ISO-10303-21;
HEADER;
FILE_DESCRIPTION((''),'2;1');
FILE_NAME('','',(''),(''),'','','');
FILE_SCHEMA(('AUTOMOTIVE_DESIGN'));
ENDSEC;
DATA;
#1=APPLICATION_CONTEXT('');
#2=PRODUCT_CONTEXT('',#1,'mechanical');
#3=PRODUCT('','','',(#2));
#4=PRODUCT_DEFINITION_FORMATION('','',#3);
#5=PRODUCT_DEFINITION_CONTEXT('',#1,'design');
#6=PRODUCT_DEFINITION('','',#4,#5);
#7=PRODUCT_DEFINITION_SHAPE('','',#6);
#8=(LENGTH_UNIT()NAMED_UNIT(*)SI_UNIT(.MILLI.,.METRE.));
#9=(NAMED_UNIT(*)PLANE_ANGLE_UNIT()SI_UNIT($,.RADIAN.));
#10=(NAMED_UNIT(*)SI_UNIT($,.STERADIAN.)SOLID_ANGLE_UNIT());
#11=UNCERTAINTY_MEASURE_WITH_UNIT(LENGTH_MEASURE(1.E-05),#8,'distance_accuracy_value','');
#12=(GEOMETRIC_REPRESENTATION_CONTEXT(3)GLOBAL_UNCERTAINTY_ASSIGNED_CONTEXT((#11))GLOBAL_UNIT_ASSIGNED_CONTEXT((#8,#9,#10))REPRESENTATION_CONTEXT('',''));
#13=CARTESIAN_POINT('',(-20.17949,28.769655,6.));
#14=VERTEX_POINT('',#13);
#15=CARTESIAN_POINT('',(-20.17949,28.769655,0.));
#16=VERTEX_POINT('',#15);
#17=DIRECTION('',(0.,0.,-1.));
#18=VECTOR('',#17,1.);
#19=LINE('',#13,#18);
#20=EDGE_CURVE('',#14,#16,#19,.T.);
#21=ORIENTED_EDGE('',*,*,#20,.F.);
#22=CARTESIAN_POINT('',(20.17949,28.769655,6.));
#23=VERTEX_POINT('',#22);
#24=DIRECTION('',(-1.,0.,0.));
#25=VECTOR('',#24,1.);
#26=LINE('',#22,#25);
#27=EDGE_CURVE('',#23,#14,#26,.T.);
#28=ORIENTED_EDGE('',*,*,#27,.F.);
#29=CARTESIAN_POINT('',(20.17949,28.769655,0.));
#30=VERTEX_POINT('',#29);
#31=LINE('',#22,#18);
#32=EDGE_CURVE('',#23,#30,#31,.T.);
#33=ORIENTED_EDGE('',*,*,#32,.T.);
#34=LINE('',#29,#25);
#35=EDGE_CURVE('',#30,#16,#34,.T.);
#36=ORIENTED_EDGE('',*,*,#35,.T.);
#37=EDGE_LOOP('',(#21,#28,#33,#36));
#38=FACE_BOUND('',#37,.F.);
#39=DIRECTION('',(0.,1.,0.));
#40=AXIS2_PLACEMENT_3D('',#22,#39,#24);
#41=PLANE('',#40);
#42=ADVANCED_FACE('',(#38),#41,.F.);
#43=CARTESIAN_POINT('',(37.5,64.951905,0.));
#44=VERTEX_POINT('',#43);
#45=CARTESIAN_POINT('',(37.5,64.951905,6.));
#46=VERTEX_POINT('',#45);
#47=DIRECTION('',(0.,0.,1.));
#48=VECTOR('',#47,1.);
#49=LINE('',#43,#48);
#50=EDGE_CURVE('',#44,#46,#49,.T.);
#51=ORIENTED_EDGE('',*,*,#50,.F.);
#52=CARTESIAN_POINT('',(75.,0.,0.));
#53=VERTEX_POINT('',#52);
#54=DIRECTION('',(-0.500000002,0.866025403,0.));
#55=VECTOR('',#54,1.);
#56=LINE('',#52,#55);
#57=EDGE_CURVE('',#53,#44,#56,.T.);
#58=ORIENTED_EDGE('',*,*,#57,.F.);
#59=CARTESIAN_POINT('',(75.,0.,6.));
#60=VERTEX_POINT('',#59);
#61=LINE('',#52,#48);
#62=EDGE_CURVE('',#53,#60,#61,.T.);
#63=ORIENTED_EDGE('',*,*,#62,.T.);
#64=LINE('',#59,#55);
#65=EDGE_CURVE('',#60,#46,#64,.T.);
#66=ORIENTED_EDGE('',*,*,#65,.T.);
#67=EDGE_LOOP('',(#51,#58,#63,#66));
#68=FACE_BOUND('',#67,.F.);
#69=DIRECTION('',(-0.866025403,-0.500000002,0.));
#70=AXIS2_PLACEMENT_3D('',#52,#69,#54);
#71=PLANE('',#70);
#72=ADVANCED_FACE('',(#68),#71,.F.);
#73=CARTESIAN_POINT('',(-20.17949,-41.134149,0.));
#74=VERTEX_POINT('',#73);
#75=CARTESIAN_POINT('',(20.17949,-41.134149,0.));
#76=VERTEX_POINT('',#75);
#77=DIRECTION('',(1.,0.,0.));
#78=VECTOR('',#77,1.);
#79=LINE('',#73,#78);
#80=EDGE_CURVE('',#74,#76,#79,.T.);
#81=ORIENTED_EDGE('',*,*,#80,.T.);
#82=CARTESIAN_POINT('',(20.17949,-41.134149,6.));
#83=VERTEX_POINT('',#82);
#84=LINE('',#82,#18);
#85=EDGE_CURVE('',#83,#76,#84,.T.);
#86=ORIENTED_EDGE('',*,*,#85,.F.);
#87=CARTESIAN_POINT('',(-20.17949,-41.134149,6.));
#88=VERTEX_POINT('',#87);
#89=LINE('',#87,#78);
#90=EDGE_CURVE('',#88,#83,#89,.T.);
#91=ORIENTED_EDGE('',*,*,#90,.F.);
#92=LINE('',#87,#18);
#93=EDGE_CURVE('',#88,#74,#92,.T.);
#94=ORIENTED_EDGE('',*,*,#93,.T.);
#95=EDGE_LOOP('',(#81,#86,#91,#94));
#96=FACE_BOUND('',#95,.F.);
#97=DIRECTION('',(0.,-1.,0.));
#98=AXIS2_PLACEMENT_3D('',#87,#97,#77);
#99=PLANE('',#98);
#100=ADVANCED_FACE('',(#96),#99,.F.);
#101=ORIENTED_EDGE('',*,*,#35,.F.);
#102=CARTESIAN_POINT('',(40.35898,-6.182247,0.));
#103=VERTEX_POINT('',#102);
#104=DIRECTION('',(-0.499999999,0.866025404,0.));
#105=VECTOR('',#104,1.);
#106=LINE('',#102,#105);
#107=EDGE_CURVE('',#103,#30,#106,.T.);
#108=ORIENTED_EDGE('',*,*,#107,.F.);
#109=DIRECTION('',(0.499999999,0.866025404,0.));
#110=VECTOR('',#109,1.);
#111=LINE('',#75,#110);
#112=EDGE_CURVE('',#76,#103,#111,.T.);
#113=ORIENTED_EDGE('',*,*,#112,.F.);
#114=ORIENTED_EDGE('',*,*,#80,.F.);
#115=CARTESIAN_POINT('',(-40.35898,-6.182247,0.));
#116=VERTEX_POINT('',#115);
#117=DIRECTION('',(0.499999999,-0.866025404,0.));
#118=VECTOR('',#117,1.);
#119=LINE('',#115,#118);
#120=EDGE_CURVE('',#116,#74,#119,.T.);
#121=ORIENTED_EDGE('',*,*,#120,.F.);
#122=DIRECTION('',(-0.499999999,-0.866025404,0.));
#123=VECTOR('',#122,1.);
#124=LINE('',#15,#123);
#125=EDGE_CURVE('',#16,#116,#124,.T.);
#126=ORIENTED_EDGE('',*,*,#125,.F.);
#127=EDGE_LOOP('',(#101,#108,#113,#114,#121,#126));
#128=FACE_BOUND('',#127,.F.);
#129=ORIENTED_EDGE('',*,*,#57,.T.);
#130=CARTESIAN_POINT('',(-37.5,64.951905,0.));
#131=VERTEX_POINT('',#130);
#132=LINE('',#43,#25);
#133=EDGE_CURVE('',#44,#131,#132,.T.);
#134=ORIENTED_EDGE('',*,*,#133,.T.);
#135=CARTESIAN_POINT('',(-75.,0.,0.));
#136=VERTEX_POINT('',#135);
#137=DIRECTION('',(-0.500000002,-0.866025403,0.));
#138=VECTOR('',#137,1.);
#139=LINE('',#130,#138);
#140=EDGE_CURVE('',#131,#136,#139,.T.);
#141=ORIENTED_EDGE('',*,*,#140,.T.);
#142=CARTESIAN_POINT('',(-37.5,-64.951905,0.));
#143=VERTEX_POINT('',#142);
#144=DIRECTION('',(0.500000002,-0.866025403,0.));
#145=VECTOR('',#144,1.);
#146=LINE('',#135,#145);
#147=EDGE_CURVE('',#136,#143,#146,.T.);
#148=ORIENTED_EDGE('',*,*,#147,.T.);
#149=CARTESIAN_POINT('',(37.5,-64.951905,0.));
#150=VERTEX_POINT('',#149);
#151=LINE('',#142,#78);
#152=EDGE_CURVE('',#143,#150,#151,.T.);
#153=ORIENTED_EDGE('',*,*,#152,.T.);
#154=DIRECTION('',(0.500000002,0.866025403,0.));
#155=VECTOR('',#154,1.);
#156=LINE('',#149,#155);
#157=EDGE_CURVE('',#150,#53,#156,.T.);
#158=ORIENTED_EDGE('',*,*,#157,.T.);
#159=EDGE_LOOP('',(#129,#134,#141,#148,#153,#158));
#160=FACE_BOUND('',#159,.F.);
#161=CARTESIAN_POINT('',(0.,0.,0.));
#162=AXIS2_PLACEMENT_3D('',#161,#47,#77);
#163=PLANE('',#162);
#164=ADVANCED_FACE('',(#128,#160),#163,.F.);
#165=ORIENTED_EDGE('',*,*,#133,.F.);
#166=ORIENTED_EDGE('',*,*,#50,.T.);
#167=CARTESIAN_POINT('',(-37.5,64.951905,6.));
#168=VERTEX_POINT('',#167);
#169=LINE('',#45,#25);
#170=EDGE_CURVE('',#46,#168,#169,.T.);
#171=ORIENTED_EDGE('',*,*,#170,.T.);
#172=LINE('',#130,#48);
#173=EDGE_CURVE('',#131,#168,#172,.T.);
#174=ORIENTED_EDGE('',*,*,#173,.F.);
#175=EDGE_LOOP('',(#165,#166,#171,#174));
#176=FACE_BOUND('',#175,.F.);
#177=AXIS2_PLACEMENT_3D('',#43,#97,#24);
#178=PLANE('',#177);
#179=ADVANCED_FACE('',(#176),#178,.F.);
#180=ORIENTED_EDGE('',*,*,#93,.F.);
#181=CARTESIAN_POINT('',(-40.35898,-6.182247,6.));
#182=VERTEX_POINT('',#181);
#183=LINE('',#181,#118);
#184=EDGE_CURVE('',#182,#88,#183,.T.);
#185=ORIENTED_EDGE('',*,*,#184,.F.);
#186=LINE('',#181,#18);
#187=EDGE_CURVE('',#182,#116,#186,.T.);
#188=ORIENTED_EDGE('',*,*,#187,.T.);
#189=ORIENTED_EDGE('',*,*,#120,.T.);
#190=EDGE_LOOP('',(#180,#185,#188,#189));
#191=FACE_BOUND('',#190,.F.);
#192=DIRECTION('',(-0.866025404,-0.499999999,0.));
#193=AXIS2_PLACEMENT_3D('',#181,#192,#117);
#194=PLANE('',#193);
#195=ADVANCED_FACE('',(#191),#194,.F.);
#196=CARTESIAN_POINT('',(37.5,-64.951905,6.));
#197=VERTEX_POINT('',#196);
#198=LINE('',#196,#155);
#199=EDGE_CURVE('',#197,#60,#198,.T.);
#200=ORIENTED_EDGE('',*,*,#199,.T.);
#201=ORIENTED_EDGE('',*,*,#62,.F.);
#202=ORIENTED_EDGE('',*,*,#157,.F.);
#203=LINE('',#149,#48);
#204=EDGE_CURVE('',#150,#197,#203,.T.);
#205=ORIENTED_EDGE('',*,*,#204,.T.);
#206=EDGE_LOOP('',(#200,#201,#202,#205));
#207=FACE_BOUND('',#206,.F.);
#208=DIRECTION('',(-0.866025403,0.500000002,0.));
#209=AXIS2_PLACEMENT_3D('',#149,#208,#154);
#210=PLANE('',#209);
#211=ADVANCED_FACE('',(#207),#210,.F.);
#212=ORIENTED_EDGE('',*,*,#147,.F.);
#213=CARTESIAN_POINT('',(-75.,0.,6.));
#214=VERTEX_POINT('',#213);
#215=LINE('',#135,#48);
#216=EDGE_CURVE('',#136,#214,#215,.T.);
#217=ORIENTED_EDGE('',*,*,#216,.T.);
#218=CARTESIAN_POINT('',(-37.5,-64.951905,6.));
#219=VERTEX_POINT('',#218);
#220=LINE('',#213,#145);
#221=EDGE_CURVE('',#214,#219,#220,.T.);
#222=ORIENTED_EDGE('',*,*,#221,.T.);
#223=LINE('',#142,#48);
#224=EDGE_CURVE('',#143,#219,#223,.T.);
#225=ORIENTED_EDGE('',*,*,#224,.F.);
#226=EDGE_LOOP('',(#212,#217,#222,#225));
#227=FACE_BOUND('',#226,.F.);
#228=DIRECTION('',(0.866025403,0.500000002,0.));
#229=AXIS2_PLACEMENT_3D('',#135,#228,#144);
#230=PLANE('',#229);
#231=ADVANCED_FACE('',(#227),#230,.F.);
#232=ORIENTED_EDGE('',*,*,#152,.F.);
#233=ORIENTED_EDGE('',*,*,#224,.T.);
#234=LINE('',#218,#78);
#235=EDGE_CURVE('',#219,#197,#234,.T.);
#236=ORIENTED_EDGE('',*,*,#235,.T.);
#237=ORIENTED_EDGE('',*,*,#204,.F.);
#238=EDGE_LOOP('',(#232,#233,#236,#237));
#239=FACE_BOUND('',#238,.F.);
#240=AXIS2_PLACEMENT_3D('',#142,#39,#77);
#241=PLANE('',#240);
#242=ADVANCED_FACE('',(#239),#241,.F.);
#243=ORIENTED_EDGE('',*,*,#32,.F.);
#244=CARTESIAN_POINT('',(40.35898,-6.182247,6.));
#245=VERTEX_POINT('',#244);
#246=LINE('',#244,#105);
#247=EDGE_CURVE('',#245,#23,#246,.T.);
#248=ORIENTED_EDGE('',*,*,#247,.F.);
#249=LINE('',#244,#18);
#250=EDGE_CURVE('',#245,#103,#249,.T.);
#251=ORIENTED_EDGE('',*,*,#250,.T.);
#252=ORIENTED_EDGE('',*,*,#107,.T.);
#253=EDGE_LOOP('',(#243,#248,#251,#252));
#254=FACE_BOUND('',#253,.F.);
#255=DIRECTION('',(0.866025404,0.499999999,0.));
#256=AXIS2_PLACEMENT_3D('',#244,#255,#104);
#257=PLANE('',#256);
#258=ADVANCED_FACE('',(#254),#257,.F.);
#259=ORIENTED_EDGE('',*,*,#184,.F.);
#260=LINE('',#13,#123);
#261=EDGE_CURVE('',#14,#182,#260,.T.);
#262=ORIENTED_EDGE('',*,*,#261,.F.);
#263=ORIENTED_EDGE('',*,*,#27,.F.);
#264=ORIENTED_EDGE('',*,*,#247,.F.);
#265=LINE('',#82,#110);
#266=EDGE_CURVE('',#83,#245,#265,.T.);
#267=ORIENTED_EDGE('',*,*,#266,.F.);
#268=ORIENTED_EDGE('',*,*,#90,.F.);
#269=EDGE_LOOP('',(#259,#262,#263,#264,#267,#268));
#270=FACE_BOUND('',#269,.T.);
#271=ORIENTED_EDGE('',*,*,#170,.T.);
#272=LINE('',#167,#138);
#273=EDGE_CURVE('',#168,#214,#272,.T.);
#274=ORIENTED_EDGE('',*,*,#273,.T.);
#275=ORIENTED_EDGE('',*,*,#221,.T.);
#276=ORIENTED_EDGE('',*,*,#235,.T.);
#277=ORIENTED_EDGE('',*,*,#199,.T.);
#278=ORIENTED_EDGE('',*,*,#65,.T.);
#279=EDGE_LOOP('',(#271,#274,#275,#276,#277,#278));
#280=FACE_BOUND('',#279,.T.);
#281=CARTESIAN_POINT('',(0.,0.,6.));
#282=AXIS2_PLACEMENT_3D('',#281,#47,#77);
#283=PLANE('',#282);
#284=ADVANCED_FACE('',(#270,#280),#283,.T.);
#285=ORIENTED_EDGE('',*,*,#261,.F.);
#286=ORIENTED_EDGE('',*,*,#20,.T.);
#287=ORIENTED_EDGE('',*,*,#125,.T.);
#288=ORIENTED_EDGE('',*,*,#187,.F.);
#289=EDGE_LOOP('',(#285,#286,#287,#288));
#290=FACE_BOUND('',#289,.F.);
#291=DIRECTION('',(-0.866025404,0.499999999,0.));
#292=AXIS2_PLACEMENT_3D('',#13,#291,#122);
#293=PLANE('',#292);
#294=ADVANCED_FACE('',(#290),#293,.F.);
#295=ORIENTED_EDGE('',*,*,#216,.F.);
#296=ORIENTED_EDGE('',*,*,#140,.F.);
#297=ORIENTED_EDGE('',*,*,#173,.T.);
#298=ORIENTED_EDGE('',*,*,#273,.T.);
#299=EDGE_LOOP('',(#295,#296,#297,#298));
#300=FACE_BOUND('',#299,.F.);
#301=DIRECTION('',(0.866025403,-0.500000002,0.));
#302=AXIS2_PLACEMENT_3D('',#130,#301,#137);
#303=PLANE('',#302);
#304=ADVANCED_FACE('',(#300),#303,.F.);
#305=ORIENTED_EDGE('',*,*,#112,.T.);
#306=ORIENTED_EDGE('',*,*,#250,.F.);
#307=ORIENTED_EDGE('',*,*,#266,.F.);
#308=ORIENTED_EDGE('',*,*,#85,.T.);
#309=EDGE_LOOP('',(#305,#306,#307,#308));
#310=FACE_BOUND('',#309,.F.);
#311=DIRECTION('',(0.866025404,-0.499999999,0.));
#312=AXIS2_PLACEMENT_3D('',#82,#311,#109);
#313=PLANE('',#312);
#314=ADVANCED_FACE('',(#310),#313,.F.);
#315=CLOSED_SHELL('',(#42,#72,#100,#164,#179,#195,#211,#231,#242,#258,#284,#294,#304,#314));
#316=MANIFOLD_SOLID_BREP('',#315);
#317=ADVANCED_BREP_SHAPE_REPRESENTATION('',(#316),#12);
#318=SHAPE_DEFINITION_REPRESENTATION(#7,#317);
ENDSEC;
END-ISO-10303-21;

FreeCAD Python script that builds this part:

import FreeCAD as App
import Part
import Sketcher
Q = App.Units.Quantity

doc = App.newDocument("Part")
body = doc.addObject("PartDesign::Body", "Body")

# Sketch on XY plane
sketch1 = body.newObject("Sketcher::SketchObject", "Sketch")
sketch1.AttachmentSupport = (doc.getObject("XY_Plane"), [""])
sketch1.MapMode = "FlatFace"
sketch1.addGeometry([
    Part.LineSegment(App.Vector(75, 0, 0), App.Vector(38, 65, 0)),  # 0
    Part.LineSegment(App.Vector(38, 65, 0), App.Vector(-38, 65, 0)),  # 1
    Part.LineSegment(App.Vector(-38, 65, 0), App.Vector(-75, 0, 0)),  # 2
    Part.LineSegment(App.Vector(-75, 0, 0), App.Vector(-38, -65, 0)),  # 3
    Part.LineSegment(App.Vector(-38, -65, 0), App.Vector(38, -65, 0)),  # 4
    Part.LineSegment(App.Vector(38, -65, 0), App.Vector(75, 0, 0)),  # 5
], False)
sketch1.addConstraint([
    Sketcher.Constraint("Coincident", 0, 2, 1, 1),
    Sketcher.Constraint("Coincident", 1, 2, 2, 1),
    Sketcher.Constraint("Coincident", 2, 2, 3, 1),
    Sketcher.Constraint("Coincident", 3, 2, 4, 1),
    Sketcher.Constraint("Coincident", 4, 2, 5, 1),
    Sketcher.Constraint("Coincident", 5, 2, 0, 1),
    Sketcher.Constraint("Horizontal", 1),
    Sketcher.Constraint("Horizontal", 4),
    Sketcher.Constraint("Symmetric", 0, 2, 3, 2, -1, 1),
    Sketcher.Constraint("Symmetric", 2, 2, 5, 2, -1, 1),
    Sketcher.Constraint("PointOnObject", 2, 2, -1),
    Sketcher.Constraint("Parallel", 2, 5),
    Sketcher.Constraint("Vertical", 1, 2, 3, 2),
    Sketcher.Constraint("DistanceX", 1, 2, 1, 1, Q("75 mm")),
    Sketcher.Constraint("Angle", 0, Q("120 deg")),
    Sketcher.Constraint("Distance", 0, Q("75 mm")),
])
pad1 = body.newObject("PartDesign::Pad", "Pad")
pad1.Profile = sketch1
pad1.Length = 6

# Sketch on XY plane
sketch2 = body.newObject("Sketcher::SketchObject", "Sketch001")
sketch2.AttachmentSupport = (doc.getObject("XY_Plane"), [""])
sketch2.MapMode = "FlatFace"
sketch2.AttachmentOffset = App.Placement(App.Vector(0, 0, 6), App.Rotation())
sketch2.addGeometry([
    Part.LineSegment(App.Vector(40, -6, 0), App.Vector(20, 29, 0)),  # 0
    Part.LineSegment(App.Vector(20, 29, 0), App.Vector(-20, 29, 0)),  # 1
    Part.LineSegment(App.Vector(-20, 29, 0), App.Vector(-40, -6, 0)),  # 2
    Part.LineSegment(App.Vector(-40, -6, 0), App.Vector(-20, -41, 0)),  # 3
    Part.LineSegment(App.Vector(-20, -41, 0), App.Vector(20, -41, 0)),  # 4
    Part.LineSegment(App.Vector(20, -41, 0), App.Vector(40, -6, 0)),  # 5
], False)
sketch2.addConstraint([
    Sketcher.Constraint("Coincident", 0, 2, 1, 1),
    Sketcher.Constraint("Coincident", 1, 2, 2, 1),
    Sketcher.Constraint("Coincident", 2, 2, 3, 1),
    Sketcher.Constraint("Coincident", 3, 2, 4, 1),
    Sketcher.Constraint("Coincident", 4, 2, 5, 1),
    Sketcher.Constraint("Coincident", 5, 2, 0, 1),
    Sketcher.Constraint("Horizontal", 1),
    Sketcher.Constraint("Horizontal", 4),
    Sketcher.Constraint("Symmetric", 2, 2, 5, 2, -2),
    Sketcher.Constraint("Parallel", 0, 3),
    Sketcher.Constraint("Parallel", 2, 5),
    Sketcher.Constraint("Vertical", 1, 2, 3, 2),
    Sketcher.Constraint("Vertical", 0, 2, 4, 2),
    Sketcher.Constraint("Angle", 0, Q("120 deg")),
    Sketcher.Constraint("DistanceX", 1, 2, 1, 1, Q("40.35898 mm")),
    Sketcher.Constraint("Distance", 0, Q("40.35898 mm")),
    Sketcher.Constraint("DistanceY", 3, 2, -1, 1, Q("41.134149 mm")),
])
pocket1 = body.newObject("PartDesign::Pocket", "Pocket")
pocket1.Profile = sketch2
pocket1.Type = "ThroughAll"

doc.recompute()
